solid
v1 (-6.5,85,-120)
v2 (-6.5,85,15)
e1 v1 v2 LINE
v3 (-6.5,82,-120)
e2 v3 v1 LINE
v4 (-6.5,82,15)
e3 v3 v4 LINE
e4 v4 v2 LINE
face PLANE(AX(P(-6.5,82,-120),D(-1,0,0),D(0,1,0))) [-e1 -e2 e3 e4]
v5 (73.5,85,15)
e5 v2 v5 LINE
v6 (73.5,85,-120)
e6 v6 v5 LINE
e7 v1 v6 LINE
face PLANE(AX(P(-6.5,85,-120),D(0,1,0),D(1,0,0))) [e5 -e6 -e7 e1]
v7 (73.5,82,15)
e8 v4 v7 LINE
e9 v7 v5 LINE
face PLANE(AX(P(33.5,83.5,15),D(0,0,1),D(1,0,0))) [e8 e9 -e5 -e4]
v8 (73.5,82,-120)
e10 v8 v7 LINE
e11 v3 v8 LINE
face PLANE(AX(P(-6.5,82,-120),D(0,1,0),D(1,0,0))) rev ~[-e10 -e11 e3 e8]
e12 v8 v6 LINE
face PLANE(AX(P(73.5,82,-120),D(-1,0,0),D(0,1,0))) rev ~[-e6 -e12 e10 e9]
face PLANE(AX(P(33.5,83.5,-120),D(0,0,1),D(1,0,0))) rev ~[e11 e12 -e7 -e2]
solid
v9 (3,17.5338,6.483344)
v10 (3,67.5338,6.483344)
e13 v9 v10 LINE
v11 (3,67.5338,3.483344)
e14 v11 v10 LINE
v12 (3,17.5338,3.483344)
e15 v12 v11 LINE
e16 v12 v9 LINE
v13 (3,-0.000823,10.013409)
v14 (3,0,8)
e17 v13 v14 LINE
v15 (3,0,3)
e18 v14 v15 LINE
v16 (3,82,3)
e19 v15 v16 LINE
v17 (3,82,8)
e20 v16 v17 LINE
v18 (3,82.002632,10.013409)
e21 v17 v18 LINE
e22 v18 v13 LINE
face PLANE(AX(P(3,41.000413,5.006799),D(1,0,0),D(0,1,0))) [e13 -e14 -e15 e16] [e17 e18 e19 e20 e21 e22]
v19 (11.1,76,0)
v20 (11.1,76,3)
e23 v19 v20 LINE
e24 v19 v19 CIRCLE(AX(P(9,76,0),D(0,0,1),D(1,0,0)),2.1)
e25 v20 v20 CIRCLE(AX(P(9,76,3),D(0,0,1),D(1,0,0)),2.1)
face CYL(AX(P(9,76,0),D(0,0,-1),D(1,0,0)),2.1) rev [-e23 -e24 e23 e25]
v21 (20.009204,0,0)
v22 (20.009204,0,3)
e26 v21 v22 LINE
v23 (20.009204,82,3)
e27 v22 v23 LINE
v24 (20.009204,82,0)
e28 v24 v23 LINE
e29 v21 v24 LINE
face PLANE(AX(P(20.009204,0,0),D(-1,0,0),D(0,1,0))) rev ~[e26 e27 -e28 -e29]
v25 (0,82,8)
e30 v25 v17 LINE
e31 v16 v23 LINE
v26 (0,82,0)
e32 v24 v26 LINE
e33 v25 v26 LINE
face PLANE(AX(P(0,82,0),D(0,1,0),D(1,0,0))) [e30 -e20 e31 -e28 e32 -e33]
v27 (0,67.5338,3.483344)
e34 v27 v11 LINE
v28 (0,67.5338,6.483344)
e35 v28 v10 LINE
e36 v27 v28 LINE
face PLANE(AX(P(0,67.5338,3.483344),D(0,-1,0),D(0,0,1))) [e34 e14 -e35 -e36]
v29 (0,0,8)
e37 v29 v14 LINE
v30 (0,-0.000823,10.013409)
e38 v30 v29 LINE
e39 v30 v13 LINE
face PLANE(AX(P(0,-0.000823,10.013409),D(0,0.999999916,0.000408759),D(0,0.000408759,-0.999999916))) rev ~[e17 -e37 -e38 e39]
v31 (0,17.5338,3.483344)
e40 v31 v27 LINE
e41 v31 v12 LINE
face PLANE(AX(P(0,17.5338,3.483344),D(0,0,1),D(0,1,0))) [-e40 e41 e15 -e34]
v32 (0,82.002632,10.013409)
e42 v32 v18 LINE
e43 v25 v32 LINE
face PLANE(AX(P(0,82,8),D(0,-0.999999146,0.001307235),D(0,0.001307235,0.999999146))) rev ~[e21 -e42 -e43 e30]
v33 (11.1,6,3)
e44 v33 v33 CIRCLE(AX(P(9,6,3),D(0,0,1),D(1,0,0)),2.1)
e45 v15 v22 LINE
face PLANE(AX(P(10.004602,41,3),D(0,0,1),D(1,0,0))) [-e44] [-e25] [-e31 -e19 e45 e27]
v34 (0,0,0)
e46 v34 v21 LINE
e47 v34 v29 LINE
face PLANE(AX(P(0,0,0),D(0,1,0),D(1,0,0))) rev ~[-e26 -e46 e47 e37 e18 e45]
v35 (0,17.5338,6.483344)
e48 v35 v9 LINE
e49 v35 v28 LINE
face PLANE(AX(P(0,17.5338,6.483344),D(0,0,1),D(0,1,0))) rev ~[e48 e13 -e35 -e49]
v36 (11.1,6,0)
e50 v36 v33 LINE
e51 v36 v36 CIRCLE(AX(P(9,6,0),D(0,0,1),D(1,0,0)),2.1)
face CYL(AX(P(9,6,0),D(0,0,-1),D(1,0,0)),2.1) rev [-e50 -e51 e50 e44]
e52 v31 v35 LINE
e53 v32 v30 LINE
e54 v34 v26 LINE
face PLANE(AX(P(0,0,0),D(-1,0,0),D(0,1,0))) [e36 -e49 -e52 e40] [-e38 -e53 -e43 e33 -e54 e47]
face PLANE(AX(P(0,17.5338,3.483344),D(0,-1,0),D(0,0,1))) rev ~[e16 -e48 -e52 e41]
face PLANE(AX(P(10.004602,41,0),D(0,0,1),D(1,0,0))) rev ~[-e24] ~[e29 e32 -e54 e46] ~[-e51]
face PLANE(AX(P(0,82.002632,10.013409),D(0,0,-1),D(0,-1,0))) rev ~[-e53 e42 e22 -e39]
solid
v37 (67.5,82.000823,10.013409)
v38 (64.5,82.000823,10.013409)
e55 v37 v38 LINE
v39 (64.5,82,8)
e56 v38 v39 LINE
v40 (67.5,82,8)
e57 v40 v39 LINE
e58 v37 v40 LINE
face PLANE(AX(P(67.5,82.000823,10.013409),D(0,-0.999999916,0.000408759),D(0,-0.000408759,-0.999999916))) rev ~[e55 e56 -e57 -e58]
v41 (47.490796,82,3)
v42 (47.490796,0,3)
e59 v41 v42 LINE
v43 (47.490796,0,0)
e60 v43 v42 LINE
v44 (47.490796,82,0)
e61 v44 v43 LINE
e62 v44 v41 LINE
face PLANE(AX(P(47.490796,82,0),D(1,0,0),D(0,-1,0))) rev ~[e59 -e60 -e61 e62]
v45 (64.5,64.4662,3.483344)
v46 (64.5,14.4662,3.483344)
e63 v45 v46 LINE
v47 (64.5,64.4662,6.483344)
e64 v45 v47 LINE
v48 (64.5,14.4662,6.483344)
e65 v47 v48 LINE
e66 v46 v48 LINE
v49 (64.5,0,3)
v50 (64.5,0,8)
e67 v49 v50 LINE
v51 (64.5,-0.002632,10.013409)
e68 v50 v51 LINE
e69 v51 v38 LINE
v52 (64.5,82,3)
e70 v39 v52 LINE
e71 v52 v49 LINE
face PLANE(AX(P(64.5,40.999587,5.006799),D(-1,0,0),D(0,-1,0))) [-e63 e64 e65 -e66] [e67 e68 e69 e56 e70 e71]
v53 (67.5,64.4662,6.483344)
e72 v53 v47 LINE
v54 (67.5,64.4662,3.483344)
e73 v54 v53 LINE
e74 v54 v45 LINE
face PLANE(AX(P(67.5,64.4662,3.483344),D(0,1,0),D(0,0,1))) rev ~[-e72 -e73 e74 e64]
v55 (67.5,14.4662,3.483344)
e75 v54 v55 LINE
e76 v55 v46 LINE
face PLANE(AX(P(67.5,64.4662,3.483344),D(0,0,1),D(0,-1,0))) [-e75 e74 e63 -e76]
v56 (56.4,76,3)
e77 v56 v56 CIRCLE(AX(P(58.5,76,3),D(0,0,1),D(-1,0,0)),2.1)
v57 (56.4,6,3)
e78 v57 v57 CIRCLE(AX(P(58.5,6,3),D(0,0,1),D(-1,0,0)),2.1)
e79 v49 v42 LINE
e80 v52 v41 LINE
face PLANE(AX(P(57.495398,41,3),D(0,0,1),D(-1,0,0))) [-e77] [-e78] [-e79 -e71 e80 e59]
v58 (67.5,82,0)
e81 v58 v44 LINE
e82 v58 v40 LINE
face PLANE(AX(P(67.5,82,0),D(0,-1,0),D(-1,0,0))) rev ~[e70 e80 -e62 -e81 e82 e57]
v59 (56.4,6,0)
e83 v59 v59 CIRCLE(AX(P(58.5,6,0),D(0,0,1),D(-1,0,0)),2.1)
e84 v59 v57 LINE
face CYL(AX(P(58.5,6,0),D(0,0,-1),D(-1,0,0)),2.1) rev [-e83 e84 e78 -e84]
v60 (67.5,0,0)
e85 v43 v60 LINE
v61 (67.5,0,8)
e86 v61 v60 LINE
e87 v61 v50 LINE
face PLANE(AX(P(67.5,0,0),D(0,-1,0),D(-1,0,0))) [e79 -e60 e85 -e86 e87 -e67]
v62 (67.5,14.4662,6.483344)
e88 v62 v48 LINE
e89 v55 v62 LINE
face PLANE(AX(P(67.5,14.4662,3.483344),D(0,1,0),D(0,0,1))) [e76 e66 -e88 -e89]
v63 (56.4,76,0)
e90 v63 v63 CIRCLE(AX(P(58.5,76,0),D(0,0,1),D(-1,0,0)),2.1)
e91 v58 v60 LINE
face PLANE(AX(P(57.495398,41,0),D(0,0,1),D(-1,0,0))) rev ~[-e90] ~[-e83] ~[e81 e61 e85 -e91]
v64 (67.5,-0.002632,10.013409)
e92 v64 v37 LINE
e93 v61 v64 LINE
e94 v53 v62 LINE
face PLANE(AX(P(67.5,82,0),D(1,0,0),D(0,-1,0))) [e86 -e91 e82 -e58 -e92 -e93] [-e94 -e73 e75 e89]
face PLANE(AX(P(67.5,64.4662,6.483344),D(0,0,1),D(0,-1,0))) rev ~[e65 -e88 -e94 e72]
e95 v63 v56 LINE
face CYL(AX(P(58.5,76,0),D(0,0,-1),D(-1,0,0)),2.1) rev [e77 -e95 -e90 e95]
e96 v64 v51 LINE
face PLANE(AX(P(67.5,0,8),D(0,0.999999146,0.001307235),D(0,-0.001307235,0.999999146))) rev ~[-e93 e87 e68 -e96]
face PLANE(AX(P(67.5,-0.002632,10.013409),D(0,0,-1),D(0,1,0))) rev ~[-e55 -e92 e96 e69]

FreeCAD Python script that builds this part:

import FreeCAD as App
import Part
import Sketcher

doc = App.newDocument("Part")
body = doc.addObject("PartDesign::Body", "Body")

# Sketch on YZ plane
sketch1 = body.newObject("Sketcher::SketchObject", "Sketch")
sketch1.AttachmentSupport = (doc.getObject("YZ_Plane"), [""])
sketch1.MapMode = "FlatFace"
sketch1.addGeometry(Part.LineSegment(App.Vector(0, 0, 0), App.Vector(82, 0, 0)), False)
sketch1.addGeometry(Part.LineSegment(App.Vector(82, 0, 0), App.Vector(82, 8, 0)), False)
sketch1.addGeometry(Part.LineSegment(App.Vector(82, 8, 0), App.Vector(82.002632, 10.013409, 0)), False)
sketch1.addGeometry(Part.LineSegment(App.Vector(82.002632, 10.013409, 0), App.Vector(-0.000823, 10.013409, 0)), False)
sketch1.addGeometry(Part.LineSegment(App.Vector(-0.000823, 10.013409, 0), App.Vector(0, 8, 0)), False)
sketch1.addGeometry(Part.LineSegment(App.Vector(0, 8, 0), App.Vector(0, 0, 0)), False)
sketch1.addGeometry(Part.LineSegment(App.Vector(67.5338, 3.483344, 0), App.Vector(17.5338, 3.483344, 0)), False)
sketch1.addGeometry(Part.LineSegment(App.Vector(17.5338, 3.483344, 0), App.Vector(17.5338, 6.483344, 0)), False)
sketch1.addGeometry(Part.LineSegment(App.Vector(17.5338, 6.483344, 0), App.Vector(67.5338, 6.483344, 0)), False)
sketch1.addGeometry(Part.LineSegment(App.Vector(67.5338, 6.483344, 0), App.Vector(67.5338, 3.483344, 0)), False)
sketch1.addConstraint(Sketcher.Constraint("Coincident", 0, 2, 1, 1))
sketch1.addConstraint(Sketcher.Constraint("Coincident", 1, 2, 2, 1))
sketch1.addConstraint(Sketcher.Constraint("Coincident", 2, 2, 3, 1))
sketch1.addConstraint(Sketcher.Constraint("Coincident", 3, 2, 4, 1))
sketch1.addConstraint(Sketcher.Constraint("Coincident", 4, 2, 5, 1))
sketch1.addConstraint(Sketcher.Constraint("Coincident", 5, 2, 0, 1))
sketch1.addConstraint(Sketcher.Constraint("Coincident", 6, 2, 7, 1))
sketch1.addConstraint(Sketcher.Constraint("Coincident", 7, 2, 8, 1))
sketch1.addConstraint(Sketcher.Constraint("Coincident", 8, 2, 9, 1))
sketch1.addConstraint(Sketcher.Constraint("Coincident", 9, 2, 6, 1))
sketch1.addConstraint(Sketcher.Constraint("Horizontal", 0))
sketch1.addConstraint(Sketcher.Constraint("Vertical", 1))
sketch1.addConstraint(Sketcher.Constraint("Horizontal", 3))
sketch1.addConstraint(Sketcher.Constraint("Vertical", 5))
sketch1.addConstraint(Sketcher.Constraint("Horizontal", 6))
sketch1.addConstraint(Sketcher.Constraint("Vertical", 7))
sketch1.addConstraint(Sketcher.Constraint("Horizontal", 8))
sketch1.addConstraint(Sketcher.Constraint("Vertical", 9))
sketch1.addConstraint(Sketcher.Constraint("Coincident", 5, 2, -1, 1))
sketch1.addConstraint(Sketcher.Constraint("Horizontal", 1, 2, 4, 2))
sketch1.addConstraint(Sketcher.Constraint("DistanceX", 0, 1, 0, 2, 82.0))
sketch1.addConstraint(Sketcher.Constraint("DistanceX", 6, 2, 6, 1, 50.0))
sketch1.addConstraint(Sketcher.Constraint("DistanceY", 1, 1, 1, 2, 8.0))
sketch1.addConstraint(Sketcher.Constraint("DistanceY", 7, 1, 7, 2, 3.0))
sketch1.addConstraint(Sketcher.Constraint("DistanceX", -1, 1, 6, 2, 17.5338))
sketch1.addConstraint(Sketcher.Constraint("Distance", 2, 2.013411))
sketch1.addConstraint(Sketcher.Constraint("DistanceX", 3, 2, 3, 1, 82.003455))
sketch1.addConstraint(Sketcher.Constraint("DistanceX", -1, 1, 2, 2, 82.002632))
sketch1.addConstraint(Sketcher.Constraint("DistanceY", -1, 1, 6, 2, 3.483344))
pad1 = body.newObject("PartDesign::Pad", "Pad")
pad1.Profile = sketch1
pad1.Length = 3
body2 = doc.addObject("PartDesign::Body", "Body001")

# Sketch on XY plane
sketch2 = body2.newObject("Sketcher::SketchObject", "Sketch001")
sketch2.AttachmentSupport = (doc.getObject("XY_Plane001"), [""])
sketch2.MapMode = "FlatFace"
sketch2.addGeometry(Part.LineSegment(App.Vector(0, 82, 0), App.Vector(0, 0, 0)), False)
sketch2.addGeometry(Part.LineSegment(App.Vector(0, 0, 0), App.Vector(20.009204, 0, 0)), False)
sketch2.addGeometry(Part.LineSegment(App.Vector(20.009204, 0, 0), App.Vector(20.009204, 82, 0)), False)
sketch2.addGeometry(Part.LineSegment(App.Vector(20.009204, 82, 0), App.Vector(0, 82, 0)), False)
sketch2.addGeometry(Part.Circle(App.Vector(9, 6, 0), App.Vector(0, 0, 1), 2.1), False)
sketch2.addGeometry(Part.Circle(App.Vector(9, 76, 0), App.Vector(0, 0, 1), 2.1), False)
sketch2.addConstraint(Sketcher.Constraint("Coincident", 0, 2, 1, 1))
sketch2.addConstraint(Sketcher.Constraint("Coincident", 1, 2, 2, 1))
sketch2.addConstraint(Sketcher.Constraint("Coincident", 2, 2, 3, 1))
sketch2.addConstraint(Sketcher.Constraint("Coincident", 3, 2, 0, 1))
sketch2.addConstraint(Sketcher.Constraint("Vertical", 0))
sketch2.addConstraint(Sketcher.Constraint("Horizontal", 1))
sketch2.addConstraint(Sketcher.Constraint("Vertical", 2))
sketch2.addConstraint(Sketcher.Constraint("Horizontal", 3))
sketch2.addConstraint(Sketcher.Constraint("Coincident", 0, 2, -1, 1))
sketch2.addConstraint(Sketcher.Constraint("Equal", 4, 5))
sketch2.addConstraint(Sketcher.Constraint("Vertical", 4, 3, 5, 3))
sketch2.addConstraint(Sketcher.Constraint("Diameter", 4, 4.2))
sketch2.addConstraint(Sketcher.Constraint("DistanceY", 0, 2, 0, 1, 82.0))
sketch2.addConstraint(Sketcher.Constraint("DistanceX", -1, 1, 4, 3, 9.0))
sketch2.addConstraint(Sketcher.Constraint("DistanceY", -1, 1, 4, 3, 6.0))
sketch2.addConstraint(Sketcher.Constraint("DistanceY", -1, 1, 5, 3, 76.0))
sketch2.addConstraint(Sketcher.Constraint("DistanceX", 1, 1, 1, 2, 20.009204))
pad2 = body2.newObject("PartDesign::Pad", "Pad001")
pad2.Profile = sketch2
pad2.Length = 3
body3 = doc.addObject("PartDesign::Body", "Body002")
doc.recompute()

body3.BaseFeature = body2
doc.recompute()

body4 = doc.addObject("PartDesign::Body", "Body003")
body4.BaseFeature = body
boolean = body3.newObject("PartDesign::Boolean", "Boolean")
boolean.Type = "Fuse"
boolean.addObjects([body4])
doc.recompute()
body5 = doc.addObject("PartDesign::Body", "Body004")

# Sketch on XY plane
sketch3 = body5.newObject("Sketcher::SketchObject", "Sketch002")
sketch3.AttachmentSupport = (doc.getObject("XY_Plane004"), [""])
sketch3.MapMode = "FlatFace"
sketch3.AttachmentOffset = App.Placement(App.Vector(0, 0, -120), App.Rotation())
sketch3.addGeometry(Part.LineSegment(App.Vector(-6.5, 85, 0), App.Vector(-6.5, 82, 0)), False)
sketch3.addGeometry(Part.LineSegment(App.Vector(-6.5, 82, 0), App.Vector(73.5, 82, 0)), False)
sketch3.addGeometry(Part.LineSegment(App.Vector(73.5, 82, 0), App.Vector(73.5, 85, 0)), False)
sketch3.addGeometry(Part.LineSegment(App.Vector(73.5, 85, 0), App.Vector(-6.5, 85, 0)), False)
sketch3.addConstraint(Sketcher.Constraint("Coincident", 0, 2, 1, 1))
sketch3.addConstraint(Sketcher.Constraint("Coincident", 1, 2, 2, 1))
sketch3.addConstraint(Sketcher.Constraint("Coincident", 2, 2, 3, 1))
sketch3.addConstraint(Sketcher.Constraint("Coincident", 3, 2, 0, 1))
sketch3.addConstraint(Sketcher.Constraint("Vertical", 0))
sketch3.addConstraint(Sketcher.Constraint("Horizontal", 1))
sketch3.addConstraint(Sketcher.Constraint("Vertical", 2))
sketch3.addConstraint(Sketcher.Constraint("Horizontal", 3))
sketch3.addConstraint(Sketcher.Constraint("DistanceX", 1, 1, 1, 2, 80.0))
sketch3.addConstraint(Sketcher.Constraint("DistanceY", 0, 2, 0, 1, 3.0))
sketch3.addConstraint(Sketcher.Constraint("DistanceY", -1, 1, 0, 2, 82.0))
sketch3.addConstraint(Sketcher.Constraint("DistanceX", 0, 2, -1, 1, 6.5))
pad3 = body5.newObject("PartDesign::Pad", "Pad002")
pad3.Profile = sketch3
pad3.Length = 135
doc.recompute()

boolean2 = body2.newObject("PartDesign::Boolean", "Boolean001")
boolean2.Type = "Fuse"
boolean2.addObjects([body])
body6 = doc.addObject("PartDesign::Body", "Body005")
doc.recompute()

body2.Placement = App.Placement(App.Vector(67.5, 82, 0), App.Rotation(App.Vector(0, 0, 1), 180))
boolean3 = body6.newObject("PartDesign::Boolean", "Boolean002")
boolean3.Type = "Fuse"
boolean3.addObjects([body2])

doc.recompute()
